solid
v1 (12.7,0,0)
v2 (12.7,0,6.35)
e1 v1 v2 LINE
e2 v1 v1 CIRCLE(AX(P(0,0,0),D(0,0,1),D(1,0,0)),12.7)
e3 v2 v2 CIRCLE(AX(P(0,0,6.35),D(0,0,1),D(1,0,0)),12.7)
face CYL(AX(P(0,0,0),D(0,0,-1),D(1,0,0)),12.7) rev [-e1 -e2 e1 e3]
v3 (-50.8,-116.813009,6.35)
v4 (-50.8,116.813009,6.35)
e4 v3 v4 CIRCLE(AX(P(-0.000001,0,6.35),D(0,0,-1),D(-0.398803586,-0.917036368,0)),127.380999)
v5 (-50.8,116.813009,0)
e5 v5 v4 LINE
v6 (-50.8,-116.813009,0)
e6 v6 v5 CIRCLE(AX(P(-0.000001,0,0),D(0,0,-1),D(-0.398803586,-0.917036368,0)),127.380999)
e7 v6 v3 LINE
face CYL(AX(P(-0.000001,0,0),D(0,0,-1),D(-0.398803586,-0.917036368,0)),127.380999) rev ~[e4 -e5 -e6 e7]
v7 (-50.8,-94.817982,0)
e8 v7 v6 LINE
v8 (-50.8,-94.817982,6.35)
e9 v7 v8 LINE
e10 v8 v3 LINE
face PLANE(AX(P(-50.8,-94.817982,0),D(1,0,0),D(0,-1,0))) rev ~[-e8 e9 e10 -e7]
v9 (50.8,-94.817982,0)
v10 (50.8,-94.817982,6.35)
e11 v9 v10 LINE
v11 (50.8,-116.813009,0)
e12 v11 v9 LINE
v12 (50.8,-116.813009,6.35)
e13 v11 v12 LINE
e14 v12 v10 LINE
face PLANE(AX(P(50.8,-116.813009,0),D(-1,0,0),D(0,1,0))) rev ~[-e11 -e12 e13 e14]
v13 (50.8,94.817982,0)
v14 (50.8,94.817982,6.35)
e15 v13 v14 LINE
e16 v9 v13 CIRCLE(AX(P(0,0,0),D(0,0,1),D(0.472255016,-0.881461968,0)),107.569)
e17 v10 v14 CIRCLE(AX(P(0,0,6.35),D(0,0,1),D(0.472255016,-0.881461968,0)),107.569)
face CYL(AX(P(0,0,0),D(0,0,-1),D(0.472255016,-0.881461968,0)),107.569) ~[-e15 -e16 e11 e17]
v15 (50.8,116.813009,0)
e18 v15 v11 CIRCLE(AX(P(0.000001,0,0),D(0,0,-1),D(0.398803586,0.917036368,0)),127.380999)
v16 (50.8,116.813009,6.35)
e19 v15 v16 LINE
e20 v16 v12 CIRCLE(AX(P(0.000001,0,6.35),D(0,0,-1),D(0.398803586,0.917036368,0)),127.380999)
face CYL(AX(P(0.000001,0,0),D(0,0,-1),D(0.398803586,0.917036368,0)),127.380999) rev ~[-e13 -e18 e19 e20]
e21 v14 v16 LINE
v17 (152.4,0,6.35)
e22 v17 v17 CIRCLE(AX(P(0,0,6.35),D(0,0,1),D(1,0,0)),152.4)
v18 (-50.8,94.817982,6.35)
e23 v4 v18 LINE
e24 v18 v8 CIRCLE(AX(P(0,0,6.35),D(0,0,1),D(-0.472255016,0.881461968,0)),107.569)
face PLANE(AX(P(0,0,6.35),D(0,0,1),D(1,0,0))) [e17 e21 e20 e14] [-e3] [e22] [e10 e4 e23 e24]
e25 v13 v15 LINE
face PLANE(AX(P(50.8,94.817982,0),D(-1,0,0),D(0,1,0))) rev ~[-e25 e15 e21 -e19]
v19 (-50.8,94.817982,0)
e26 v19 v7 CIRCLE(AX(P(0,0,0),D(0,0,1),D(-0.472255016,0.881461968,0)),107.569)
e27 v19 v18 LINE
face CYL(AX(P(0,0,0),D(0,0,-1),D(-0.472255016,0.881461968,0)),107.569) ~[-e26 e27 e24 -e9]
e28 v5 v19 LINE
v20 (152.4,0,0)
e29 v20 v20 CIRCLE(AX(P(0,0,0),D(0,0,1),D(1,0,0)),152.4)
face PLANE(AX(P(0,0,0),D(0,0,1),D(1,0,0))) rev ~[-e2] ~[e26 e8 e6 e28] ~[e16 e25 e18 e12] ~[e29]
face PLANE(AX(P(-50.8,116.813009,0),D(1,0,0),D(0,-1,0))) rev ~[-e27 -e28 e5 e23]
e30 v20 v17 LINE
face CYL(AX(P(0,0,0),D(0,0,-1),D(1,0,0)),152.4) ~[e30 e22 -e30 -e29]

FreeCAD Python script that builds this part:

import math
import FreeCAD as App
import Part
import Sketcher

V = App.Vector
Q = App.Units.Quantity

doc = App.newDocument("Part")
body = doc.addObject("PartDesign::Body", "Body")

# Sketch on XY plane
sketch1 = body.newObject("Sketcher::SketchObject", "Sketch")
sketch1.AttachmentSupport = (doc.getObject("XY_Plane"), [""])
sketch1.MapMode = "FlatFace"
sketch1.addGeometry([
    Part.Circle(V(0, 0, 0), V(0, 0, 1), 152),  # 0
    Part.LineSegment(V(-51, -95, 0), V(-51, -117, 0)),  # 1
    Part.ArcOfCircle(Part.Circle(V(0, 0, 0), V(0, 0, 1), 127), math.radians(114), math.radians(246)),  # 2
    Part.LineSegment(V(-51, 117, 0), V(-51, 95, 0)),  # 3
    Part.ArcOfCircle(Part.Circle(V(0, 0, 0), V(0, 0, 1), 108), math.radians(118), math.radians(242)),  # 4
    Part.Circle(V(0, 0, 0), V(0, 0, 1), 13),  # 5
    Part.ArcOfCircle(Part.Circle(V(0, 0, 0), V(0, 0, 1), 108), math.radians(-62), math.radians(62)),  # 6
    Part.LineSegment(V(51, 95, 0), V(51, 117, 0)),  # 7
    Part.ArcOfCircle(Part.Circle(V(0, 0, 0), V(0, 0, 1), 127), math.radians(-66), math.radians(66)),  # 8
    Part.LineSegment(V(51, -117, 0), V(51, -95, 0)),  # 9
], False)
sketch1.addConstraint([
    Sketcher.Constraint("Coincident", 1, 2, 2, 2),
    Sketcher.Constraint("Coincident", 2, 1, 3, 1),
    Sketcher.Constraint("Coincident", 3, 2, 4, 1),
    Sketcher.Constraint("Coincident", 4, 2, 1, 1),
    Sketcher.Constraint("Coincident", 6, 2, 7, 1),
    Sketcher.Constraint("Coincident", 7, 2, 8, 2),
    Sketcher.Constraint("Coincident", 8, 1, 9, 1),
    Sketcher.Constraint("Coincident", 9, 2, 6, 1),
    Sketcher.Constraint("Vertical", 1),
    Sketcher.Constraint("Vertical", 3),
    Sketcher.Constraint("Vertical", 7),
    Sketcher.Constraint("Vertical", 9),
    Sketcher.Constraint("Coincident", 0, 3, -1, 1),
    Sketcher.Constraint("Coincident", 2, 3, -1, 1),
    Sketcher.Constraint("Coincident", 4, 3, -1, 1),
    Sketcher.Constraint("Coincident", 5, 3, -1, 1),
    Sketcher.Constraint("Coincident", 6, 3, -1, 1),
    Sketcher.Constraint("Coincident", 8, 3, -1, 1),
    Sketcher.Constraint("Equal", 4, 6),
    Sketcher.Constraint("Equal", 2, 8),
    Sketcher.Constraint("Horizontal", 3, 2, 6, 2),
    Sketcher.Constraint("Horizontal", 1, 2, 8, 1),
    Sketcher.Constraint("Vertical", 1, 2, 2, 1),
    Sketcher.Constraint("Diameter", 0, Q("12 in")),
    Sketcher.Constraint("Diameter", 5, Q("1 in")),
    Sketcher.Constraint("DistanceX", 1, 2, -1, 1, Q("2 in")),
    Sketcher.Constraint("Radius", 2, Q("5.015 in")),
    Sketcher.Constraint("Radius", 4, Q("4.235 in")),
])
pad1 = body.newObject("PartDesign::Pad", "Pad")
pad1.Profile = sketch1
pad1.Length = Q("0.25 in")

doc.recompute()
